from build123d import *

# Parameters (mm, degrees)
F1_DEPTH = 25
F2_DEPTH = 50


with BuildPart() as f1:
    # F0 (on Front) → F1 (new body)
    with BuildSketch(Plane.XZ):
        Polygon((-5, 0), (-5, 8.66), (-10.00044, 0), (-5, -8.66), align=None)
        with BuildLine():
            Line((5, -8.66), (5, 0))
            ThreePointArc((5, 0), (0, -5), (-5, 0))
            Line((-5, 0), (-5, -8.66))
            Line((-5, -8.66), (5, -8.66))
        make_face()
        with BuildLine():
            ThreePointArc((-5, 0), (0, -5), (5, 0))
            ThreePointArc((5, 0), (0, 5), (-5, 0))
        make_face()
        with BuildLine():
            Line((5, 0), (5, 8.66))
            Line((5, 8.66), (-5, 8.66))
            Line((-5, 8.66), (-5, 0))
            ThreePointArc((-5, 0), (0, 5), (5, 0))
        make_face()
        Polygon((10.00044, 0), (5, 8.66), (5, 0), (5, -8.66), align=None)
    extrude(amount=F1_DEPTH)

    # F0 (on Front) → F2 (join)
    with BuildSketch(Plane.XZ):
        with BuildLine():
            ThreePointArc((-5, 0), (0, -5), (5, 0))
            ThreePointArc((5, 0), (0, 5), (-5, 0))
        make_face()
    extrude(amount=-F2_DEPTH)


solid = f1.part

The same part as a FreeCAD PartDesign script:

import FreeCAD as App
import Part
import Sketcher

V = App.Vector
Q = App.Units.Quantity

doc = App.newDocument("Part")
body = doc.addObject("PartDesign::Body", "Body")

# Sketch on XZ plane
sketch1 = body.newObject("Sketcher::SketchObject", "Sketch")
sketch1.AttachmentSupport = (doc.getObject("XZ_Plane"), [""])
sketch1.MapMode = "FlatFace"
sketch1.addGeometry([
    Part.LineSegment(V(-5, 9, 0), V(-10, 0, 0)),  # 0
    Part.LineSegment(V(-10, 0, 0), V(-5, -9, 0)),  # 1
    Part.LineSegment(V(-5, -9, 0), V(5, -9, 0)),  # 2
    Part.LineSegment(V(5, -9, 0), V(10, 0, 0)),  # 3
    Part.LineSegment(V(10, 0, 0), V(5, 9, 0)),  # 4
    Part.LineSegment(V(5, 9, 0), V(-5, 9, 0)),  # 5
], False)
sketch1.addConstraint([
    Sketcher.Constraint("Coincident", 0, 2, 1, 1),
    Sketcher.Constraint("Coincident", 1, 2, 2, 1),
    Sketcher.Constraint("Coincident", 2, 2, 3, 1),
    Sketcher.Constraint("Coincident", 3, 2, 4, 1),
    Sketcher.Constraint("Coincident", 4, 2, 5, 1),
    Sketcher.Constraint("Coincident", 5, 2, 0, 1),
    Sketcher.Constraint("Horizontal", 2),
    Sketcher.Constraint("Horizontal", 5),
    Sketcher.Constraint("Symmetric", 0, 2, 3, 2, -1, 1),
    Sketcher.Constraint("Symmetric", 1, 2, 4, 2, -1, 1),
    Sketcher.Constraint("PointOnObject", 0, 2, -1),
    Sketcher.Constraint("Parallel", 0, 3),
    Sketcher.Constraint("Vertical", 2, 2, 4, 2),
    Sketcher.Constraint("DistanceX", 2, 1, 2, 2, Q("10 mm")),
    Sketcher.Constraint("Distance", 0, Q("10 mm")),
    Sketcher.Constraint("DistanceY", 1, 2, -1, 1, Q("8.66 mm")),
])
pad1 = body.newObject("PartDesign::Pad", "Pad")
pad1.Profile = sketch1
pad1.Length = 25

# Sketch on XZ plane
sketch2 = body.newObject("Sketcher::SketchObject", "Sketch001")
sketch2.AttachmentSupport = (doc.getObject("XZ_Plane"), [""])
sketch2.MapMode = "FlatFace"
sketch2.addGeometry(Part.Circle(V(0, 0, 0), V(0, 0, 1), 5), False)
sketch2.addConstraint([
    Sketcher.Constraint("Coincident", 0, 3, -1, 1),
    Sketcher.Constraint("Diameter", 0, Q("10 mm")),
])
pad2 = body.newObject("PartDesign::Pad", "Pad001")
pad2.Profile = sketch2
pad2.Length = 50
pad2.Reversed = True

doc.recompute()
